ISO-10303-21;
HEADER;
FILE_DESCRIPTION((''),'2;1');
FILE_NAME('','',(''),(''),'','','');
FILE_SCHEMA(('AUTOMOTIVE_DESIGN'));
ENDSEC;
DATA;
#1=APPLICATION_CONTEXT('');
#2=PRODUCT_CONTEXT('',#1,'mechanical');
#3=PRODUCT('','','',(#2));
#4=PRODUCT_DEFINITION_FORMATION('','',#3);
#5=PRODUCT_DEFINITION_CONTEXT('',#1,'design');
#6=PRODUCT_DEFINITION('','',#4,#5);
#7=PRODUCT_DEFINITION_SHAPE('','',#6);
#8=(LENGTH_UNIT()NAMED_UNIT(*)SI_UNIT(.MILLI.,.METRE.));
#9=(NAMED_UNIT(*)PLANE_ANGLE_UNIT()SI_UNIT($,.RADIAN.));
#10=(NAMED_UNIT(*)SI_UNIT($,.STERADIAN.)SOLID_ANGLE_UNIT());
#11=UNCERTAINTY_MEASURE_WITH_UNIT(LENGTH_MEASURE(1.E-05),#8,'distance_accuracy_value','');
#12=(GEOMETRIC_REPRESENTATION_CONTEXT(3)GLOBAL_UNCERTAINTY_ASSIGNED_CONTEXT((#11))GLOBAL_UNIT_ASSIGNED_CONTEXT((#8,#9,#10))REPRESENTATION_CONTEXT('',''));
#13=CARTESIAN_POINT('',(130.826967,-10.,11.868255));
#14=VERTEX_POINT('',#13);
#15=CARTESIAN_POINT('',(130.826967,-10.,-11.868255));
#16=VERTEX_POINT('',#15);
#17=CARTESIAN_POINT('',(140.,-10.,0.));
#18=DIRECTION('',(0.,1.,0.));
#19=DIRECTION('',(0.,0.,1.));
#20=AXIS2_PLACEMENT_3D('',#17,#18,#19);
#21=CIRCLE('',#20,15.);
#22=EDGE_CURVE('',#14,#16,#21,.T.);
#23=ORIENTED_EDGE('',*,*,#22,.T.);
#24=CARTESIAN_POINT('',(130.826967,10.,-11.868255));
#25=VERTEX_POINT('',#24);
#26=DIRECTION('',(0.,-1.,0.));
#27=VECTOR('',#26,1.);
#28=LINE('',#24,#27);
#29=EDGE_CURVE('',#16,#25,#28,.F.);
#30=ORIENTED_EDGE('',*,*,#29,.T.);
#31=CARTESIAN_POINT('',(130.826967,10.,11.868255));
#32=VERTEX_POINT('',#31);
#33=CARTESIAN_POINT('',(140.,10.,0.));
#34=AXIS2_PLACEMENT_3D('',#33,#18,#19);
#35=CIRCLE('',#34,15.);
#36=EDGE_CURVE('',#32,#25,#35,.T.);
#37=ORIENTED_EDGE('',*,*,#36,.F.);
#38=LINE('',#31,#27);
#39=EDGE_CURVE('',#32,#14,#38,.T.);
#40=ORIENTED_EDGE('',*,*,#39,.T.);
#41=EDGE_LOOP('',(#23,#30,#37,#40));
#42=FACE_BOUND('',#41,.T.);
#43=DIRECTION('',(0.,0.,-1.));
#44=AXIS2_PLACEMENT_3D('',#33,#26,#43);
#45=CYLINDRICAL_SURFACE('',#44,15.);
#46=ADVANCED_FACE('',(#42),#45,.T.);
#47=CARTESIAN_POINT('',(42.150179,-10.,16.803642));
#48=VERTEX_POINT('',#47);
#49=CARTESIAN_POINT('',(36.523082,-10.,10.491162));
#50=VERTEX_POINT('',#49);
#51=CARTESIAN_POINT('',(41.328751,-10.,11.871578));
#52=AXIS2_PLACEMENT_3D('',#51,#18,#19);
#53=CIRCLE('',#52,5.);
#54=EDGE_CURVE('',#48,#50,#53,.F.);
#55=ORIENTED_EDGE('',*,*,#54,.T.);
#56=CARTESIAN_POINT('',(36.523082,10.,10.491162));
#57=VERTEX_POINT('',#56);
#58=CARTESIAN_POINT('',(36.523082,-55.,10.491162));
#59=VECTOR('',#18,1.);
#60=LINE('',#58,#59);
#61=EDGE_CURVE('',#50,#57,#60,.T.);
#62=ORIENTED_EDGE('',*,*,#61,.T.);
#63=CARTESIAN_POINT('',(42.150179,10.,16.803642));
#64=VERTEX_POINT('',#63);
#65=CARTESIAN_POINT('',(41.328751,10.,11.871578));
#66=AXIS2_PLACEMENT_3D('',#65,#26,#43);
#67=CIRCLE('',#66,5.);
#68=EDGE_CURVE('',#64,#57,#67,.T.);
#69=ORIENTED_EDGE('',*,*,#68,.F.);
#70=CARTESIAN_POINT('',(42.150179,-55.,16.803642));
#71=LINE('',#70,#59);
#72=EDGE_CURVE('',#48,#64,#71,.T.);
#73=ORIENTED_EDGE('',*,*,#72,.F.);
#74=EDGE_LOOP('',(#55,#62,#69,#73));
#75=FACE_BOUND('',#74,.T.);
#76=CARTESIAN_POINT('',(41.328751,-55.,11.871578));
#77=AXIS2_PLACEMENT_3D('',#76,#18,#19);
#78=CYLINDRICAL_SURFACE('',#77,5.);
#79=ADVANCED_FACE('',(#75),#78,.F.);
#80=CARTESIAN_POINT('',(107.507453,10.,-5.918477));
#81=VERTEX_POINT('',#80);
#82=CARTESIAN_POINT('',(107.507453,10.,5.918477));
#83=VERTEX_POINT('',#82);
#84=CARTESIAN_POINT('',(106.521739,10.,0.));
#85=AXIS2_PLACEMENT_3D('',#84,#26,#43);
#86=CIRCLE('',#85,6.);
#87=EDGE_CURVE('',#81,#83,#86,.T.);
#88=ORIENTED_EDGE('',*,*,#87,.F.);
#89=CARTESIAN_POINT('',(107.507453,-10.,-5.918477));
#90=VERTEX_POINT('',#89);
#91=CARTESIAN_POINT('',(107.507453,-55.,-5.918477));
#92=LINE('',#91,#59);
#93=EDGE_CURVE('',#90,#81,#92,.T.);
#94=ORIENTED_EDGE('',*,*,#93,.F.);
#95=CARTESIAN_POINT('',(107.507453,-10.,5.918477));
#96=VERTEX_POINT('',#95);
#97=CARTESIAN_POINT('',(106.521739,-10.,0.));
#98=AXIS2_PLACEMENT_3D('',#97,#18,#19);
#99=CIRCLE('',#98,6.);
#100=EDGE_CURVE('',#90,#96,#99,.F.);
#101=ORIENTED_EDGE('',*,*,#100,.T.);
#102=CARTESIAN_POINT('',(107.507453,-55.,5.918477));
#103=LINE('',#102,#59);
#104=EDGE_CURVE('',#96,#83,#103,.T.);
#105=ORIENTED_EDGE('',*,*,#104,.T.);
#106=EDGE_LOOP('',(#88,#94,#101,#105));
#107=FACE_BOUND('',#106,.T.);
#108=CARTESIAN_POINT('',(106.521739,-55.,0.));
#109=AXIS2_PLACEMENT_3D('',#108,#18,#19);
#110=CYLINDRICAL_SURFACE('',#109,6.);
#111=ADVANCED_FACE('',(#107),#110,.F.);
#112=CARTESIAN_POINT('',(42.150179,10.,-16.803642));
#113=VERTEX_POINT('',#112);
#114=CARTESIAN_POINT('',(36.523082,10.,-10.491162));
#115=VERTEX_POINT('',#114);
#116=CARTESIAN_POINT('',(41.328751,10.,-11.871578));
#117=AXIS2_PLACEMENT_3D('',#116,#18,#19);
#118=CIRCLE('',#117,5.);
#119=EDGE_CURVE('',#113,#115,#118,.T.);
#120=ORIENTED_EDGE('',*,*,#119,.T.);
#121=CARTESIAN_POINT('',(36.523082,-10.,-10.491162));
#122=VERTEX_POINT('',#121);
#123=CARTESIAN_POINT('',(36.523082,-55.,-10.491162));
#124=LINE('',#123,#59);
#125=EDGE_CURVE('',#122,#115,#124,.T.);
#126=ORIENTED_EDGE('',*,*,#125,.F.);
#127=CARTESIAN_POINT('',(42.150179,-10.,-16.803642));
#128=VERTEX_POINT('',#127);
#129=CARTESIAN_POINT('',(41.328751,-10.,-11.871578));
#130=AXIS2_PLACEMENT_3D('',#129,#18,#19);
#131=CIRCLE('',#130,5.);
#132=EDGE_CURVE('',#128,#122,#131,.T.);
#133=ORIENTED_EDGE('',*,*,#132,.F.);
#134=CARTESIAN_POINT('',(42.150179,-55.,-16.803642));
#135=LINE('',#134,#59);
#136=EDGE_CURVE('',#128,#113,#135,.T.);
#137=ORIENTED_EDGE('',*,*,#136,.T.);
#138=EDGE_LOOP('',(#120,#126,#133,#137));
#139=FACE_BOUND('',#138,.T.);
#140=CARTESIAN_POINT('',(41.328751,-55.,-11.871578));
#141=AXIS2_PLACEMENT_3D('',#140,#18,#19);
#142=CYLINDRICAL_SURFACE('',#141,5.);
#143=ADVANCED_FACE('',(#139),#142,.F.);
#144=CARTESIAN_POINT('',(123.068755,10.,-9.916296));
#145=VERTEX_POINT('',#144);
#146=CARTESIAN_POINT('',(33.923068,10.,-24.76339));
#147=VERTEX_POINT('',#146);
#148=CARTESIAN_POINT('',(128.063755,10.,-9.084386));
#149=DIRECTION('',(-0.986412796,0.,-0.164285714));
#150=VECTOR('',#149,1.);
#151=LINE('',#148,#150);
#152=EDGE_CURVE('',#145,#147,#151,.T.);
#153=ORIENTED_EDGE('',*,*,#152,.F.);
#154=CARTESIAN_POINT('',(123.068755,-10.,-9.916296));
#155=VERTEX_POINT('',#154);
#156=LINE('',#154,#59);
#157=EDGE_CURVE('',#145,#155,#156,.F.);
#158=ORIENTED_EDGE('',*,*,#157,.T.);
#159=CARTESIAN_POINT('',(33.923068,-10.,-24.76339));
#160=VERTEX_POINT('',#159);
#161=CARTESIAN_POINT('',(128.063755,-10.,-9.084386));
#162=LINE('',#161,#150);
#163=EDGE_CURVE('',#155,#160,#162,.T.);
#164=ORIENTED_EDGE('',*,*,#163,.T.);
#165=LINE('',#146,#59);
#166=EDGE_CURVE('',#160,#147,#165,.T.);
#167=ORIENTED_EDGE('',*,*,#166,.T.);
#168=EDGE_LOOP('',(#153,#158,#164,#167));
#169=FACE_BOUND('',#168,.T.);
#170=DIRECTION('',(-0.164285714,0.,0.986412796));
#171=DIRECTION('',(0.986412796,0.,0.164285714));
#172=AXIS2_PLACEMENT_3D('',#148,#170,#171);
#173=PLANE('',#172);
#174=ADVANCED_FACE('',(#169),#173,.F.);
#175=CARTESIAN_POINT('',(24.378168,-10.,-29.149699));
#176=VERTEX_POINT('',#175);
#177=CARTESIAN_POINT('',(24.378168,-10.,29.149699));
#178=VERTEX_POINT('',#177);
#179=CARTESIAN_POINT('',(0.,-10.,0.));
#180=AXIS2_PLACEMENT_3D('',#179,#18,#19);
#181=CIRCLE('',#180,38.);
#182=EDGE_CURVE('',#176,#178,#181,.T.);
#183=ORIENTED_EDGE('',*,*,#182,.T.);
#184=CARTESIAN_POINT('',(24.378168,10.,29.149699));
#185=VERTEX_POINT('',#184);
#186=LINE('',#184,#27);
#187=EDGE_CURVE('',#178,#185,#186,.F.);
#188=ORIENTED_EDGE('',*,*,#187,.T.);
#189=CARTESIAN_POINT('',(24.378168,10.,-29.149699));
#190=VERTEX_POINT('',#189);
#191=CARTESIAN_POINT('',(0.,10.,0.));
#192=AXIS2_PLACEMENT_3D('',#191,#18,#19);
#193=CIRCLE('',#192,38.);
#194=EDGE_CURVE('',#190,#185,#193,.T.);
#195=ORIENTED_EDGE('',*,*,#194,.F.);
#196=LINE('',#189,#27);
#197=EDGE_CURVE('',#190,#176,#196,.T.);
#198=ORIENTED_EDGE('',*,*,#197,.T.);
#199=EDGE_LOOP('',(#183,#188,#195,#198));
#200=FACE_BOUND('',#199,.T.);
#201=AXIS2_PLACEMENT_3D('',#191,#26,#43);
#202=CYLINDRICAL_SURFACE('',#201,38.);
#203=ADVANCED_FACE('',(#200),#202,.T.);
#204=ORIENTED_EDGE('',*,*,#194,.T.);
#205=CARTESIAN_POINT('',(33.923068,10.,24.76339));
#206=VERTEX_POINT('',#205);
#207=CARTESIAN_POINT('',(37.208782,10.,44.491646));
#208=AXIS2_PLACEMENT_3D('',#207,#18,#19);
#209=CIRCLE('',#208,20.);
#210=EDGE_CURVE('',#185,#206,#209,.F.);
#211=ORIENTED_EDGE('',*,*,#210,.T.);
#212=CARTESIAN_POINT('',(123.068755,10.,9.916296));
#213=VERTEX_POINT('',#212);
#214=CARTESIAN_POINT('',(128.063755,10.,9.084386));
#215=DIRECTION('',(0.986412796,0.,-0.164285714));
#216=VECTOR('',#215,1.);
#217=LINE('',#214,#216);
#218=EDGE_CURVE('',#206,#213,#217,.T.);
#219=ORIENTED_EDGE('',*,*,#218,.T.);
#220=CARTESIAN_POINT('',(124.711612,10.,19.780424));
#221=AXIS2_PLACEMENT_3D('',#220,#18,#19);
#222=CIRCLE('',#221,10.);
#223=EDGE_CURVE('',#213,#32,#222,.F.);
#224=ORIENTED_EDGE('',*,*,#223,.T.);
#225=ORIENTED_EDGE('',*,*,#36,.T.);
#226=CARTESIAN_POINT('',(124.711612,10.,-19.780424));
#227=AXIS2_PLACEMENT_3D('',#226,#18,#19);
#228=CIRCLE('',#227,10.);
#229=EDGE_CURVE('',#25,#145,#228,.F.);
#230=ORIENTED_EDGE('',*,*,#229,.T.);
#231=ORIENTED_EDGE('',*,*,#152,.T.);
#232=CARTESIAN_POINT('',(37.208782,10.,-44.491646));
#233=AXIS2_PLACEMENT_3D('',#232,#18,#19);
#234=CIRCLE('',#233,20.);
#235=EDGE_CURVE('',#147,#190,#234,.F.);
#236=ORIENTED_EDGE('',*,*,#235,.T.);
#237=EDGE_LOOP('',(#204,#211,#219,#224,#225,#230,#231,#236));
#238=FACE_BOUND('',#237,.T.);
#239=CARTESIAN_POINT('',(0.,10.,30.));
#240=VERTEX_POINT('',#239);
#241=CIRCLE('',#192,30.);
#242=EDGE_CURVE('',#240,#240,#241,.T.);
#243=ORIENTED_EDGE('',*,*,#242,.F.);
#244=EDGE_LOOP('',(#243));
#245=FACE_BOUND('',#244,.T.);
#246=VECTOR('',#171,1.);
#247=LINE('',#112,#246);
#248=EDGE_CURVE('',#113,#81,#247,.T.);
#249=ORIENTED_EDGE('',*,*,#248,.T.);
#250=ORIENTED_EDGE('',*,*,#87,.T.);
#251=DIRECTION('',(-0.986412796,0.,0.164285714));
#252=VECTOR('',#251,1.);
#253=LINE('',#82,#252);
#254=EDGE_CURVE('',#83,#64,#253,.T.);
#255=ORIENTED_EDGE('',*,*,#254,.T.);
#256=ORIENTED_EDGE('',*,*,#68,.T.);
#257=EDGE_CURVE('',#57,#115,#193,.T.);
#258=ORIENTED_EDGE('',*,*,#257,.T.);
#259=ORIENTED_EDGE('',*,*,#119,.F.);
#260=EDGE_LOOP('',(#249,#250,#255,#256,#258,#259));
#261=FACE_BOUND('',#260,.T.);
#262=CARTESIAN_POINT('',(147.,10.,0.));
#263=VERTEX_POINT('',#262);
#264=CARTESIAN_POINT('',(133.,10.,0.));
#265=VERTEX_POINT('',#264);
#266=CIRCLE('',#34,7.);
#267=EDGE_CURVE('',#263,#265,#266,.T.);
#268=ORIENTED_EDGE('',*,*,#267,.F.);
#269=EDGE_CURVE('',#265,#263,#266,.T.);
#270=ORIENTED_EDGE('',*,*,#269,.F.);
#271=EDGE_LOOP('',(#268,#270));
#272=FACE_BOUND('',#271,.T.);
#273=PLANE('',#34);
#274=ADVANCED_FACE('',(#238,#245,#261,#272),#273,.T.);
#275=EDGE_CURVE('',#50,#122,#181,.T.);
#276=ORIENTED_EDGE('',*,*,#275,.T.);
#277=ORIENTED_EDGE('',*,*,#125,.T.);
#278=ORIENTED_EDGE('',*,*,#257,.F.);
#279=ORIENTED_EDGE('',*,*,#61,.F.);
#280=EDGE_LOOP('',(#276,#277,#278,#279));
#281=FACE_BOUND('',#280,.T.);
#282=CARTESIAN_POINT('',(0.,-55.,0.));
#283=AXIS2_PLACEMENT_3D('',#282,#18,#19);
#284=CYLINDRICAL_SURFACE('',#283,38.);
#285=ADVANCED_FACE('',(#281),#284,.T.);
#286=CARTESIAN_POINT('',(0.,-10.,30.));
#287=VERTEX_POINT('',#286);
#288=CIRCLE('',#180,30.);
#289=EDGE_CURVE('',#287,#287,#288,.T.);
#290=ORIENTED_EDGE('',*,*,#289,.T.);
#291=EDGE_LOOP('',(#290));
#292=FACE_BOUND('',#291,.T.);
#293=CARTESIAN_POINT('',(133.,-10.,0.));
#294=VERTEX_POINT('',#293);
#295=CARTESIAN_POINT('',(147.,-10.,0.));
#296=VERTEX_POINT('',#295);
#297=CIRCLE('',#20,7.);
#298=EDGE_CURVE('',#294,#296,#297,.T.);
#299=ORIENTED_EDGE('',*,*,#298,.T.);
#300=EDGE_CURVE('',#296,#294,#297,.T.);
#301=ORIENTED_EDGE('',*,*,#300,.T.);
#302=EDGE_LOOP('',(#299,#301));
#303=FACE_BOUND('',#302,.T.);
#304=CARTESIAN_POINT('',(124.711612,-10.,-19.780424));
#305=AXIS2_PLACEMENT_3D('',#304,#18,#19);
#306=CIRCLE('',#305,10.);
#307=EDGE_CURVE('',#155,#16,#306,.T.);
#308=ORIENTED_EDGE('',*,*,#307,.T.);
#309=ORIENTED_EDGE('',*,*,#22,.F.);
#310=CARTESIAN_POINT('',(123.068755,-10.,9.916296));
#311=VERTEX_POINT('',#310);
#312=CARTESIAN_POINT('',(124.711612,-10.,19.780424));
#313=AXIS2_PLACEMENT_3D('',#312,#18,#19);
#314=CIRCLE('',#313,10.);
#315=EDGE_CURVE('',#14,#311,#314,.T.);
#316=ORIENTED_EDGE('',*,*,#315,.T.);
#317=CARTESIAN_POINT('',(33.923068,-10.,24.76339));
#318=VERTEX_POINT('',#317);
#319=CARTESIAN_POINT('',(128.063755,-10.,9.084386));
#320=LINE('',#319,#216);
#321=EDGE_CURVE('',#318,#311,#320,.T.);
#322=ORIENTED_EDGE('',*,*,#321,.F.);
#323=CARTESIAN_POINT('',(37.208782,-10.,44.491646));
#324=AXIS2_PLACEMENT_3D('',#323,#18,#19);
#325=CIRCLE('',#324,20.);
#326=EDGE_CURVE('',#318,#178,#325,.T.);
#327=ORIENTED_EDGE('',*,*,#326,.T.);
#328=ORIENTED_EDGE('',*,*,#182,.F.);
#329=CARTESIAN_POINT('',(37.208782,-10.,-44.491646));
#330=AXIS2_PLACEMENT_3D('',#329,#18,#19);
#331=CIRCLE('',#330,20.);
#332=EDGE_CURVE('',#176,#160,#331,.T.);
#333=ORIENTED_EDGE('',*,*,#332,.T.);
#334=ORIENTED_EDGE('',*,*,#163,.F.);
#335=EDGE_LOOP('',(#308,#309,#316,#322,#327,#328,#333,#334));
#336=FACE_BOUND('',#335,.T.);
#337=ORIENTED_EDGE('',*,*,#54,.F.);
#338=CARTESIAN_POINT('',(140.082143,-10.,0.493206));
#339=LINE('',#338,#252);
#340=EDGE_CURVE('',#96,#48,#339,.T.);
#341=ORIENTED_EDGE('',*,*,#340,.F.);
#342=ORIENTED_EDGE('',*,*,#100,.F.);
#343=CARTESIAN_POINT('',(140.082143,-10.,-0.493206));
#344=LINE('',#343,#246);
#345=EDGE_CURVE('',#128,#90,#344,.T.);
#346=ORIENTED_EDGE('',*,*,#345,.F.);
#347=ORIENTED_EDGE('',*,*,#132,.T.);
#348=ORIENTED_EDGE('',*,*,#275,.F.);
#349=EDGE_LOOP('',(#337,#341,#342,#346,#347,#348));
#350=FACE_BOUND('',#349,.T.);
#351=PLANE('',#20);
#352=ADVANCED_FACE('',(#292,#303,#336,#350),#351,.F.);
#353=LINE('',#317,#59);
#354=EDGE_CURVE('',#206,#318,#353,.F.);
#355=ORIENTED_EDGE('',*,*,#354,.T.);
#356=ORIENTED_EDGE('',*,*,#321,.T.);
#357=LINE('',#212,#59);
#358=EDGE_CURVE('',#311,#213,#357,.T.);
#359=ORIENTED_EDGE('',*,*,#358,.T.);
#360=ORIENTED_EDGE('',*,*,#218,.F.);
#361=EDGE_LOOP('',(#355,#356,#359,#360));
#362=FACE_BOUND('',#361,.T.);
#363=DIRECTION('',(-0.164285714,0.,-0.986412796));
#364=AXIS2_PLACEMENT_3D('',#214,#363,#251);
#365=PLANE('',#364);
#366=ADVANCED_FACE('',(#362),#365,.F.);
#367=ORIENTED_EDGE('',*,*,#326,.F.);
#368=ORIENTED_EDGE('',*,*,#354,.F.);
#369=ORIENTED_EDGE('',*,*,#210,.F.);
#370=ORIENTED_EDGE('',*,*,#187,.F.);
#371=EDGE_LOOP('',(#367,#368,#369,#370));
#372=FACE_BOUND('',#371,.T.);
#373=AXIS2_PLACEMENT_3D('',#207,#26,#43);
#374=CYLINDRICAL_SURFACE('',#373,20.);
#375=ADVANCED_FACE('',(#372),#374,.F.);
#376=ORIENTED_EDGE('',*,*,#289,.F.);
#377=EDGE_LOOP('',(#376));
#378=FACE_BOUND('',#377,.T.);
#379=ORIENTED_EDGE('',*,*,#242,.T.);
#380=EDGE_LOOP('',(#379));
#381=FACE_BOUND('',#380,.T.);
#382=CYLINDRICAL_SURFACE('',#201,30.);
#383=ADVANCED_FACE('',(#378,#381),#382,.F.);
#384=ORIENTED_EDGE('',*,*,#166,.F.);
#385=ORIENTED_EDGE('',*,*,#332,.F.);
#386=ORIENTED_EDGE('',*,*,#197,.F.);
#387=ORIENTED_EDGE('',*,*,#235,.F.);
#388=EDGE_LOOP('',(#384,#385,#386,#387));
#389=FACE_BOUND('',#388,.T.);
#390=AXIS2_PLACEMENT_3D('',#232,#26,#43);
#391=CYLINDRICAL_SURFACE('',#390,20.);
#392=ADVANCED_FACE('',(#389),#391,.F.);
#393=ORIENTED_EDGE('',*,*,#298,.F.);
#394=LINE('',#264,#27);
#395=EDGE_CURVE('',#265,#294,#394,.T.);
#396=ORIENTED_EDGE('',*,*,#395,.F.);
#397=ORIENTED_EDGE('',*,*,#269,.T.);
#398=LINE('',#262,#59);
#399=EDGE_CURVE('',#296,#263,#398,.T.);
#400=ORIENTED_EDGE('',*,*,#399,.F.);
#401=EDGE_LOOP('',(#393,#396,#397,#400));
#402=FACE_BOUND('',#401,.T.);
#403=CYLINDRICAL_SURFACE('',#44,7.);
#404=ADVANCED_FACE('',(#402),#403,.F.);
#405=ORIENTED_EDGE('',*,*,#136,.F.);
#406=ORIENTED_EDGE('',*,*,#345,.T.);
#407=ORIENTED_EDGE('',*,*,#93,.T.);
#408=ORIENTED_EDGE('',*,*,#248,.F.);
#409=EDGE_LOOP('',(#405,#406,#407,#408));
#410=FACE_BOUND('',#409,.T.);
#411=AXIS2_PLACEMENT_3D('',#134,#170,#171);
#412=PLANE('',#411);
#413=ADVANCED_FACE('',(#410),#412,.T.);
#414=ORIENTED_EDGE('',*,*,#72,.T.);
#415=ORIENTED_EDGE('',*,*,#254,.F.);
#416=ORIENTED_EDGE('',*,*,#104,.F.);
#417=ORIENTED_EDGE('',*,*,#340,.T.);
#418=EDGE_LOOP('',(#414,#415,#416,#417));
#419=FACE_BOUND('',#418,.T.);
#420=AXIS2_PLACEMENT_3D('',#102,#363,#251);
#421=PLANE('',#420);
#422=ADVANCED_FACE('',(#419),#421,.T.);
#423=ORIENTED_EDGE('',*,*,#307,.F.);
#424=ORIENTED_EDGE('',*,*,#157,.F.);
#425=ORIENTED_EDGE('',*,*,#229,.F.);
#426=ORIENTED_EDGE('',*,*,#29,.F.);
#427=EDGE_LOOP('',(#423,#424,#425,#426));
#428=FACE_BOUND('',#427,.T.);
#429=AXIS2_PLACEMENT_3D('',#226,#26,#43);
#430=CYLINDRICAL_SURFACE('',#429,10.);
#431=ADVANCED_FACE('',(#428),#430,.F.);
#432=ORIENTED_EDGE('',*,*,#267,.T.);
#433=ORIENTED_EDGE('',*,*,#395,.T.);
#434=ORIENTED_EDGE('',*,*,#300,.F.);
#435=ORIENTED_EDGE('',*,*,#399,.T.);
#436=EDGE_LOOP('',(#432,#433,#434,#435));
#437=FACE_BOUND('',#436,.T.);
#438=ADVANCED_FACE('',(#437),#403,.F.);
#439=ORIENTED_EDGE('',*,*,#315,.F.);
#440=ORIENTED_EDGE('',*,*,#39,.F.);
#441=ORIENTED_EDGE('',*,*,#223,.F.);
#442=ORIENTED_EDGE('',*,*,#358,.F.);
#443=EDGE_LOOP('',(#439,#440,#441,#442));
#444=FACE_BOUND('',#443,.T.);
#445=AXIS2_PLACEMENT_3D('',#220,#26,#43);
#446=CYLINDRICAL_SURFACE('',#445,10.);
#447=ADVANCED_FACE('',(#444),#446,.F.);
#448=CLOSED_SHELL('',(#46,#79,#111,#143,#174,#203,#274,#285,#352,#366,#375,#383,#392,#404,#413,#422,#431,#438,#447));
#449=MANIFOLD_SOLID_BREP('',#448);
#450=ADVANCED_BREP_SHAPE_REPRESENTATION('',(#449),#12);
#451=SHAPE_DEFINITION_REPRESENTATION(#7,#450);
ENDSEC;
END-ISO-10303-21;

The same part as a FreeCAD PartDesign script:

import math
import FreeCAD as App
import Part
import Sketcher

V = App.Vector
Q = App.Units.Quantity


def edges_at(feature, points):
    """Names of the edges that pass closest to the given points."""
    edges = feature.Shape.Edges
    near = lambda p: min(range(len(edges)), key=lambda i: edges[i].distToShape(Part.Vertex(*p))[0])
    return sorted({f"Edge{near(p) + 1}" for p in points})

doc = App.newDocument("Part")
body = doc.addObject("PartDesign::Body", "Body")

# Sketch on XZ plane
sketch1 = body.newObject("Sketcher::SketchObject", "Sketch")
sketch1.AttachmentSupport = (doc.getObject("XZ_Plane"), [""])
sketch1.MapMode = "FlatFace"
sketch1.addGeometry([
    Part.LineSegment(V(128, -9, 0), V(28, -26, 0)),  # 0
    Part.ArcOfCircle(Part.Circle(V(0, 0, 0), V(0, 0, 1), 38), math.radians(43), math.radians(317)),  # 1
    Part.LineSegment(V(28, 26, 0), V(128, 9, 0)),  # 2
    Part.ArcOfCircle(Part.Circle(V(140, 0, 0), V(0, 0, 1), 15), math.radians(-143), math.radians(143)),  # 3
    Part.Circle(V(0, 0, 0), V(0, 0, 1), 30),  # 4
    Part.Circle(V(140, 0, 0), V(0, 0, 1), 7),  # 5
], False)
sketch1.addConstraint([
    Sketcher.Constraint("Coincident", 0, 2, 1, 2),
    Sketcher.Constraint("Coincident", 1, 1, 2, 1),
    Sketcher.Constraint("Coincident", 2, 2, 3, 2),
    Sketcher.Constraint("Coincident", 3, 1, 0, 1),
    Sketcher.Constraint("Coincident", 1, 3, -1, 1),
    Sketcher.Constraint("Coincident", 4, 3, -1, 1),
    Sketcher.Constraint("Coincident", 5, 3, 3, 3),
    Sketcher.Constraint("Symmetric", 2, 2, 3, 1, -1),
    Sketcher.Constraint("Vertical", 0, 2, 1, 1),
    Sketcher.Constraint("Diameter", 4, Q("60 mm")),
    Sketcher.Constraint("Diameter", 5, Q("14 mm")),
    Sketcher.Constraint("Radius", 1, Q("38 mm")),
    Sketcher.Constraint("Radius", 3, Q("15 mm")),
    Sketcher.Constraint("DistanceX", -1, 1, 3, 3, Q("140 mm")),
    Sketcher.Constraint("DistanceY", 0, 2, 2, 2, Q("34.845001 mm")),
    Sketcher.Constraint("DistanceY", 0, 2, 1, 1, Q("51.521231 mm")),
])
pad1 = body.newObject("PartDesign::Pad", "Pad")
pad1.Profile = sketch1
pad1.Length = 20
pad1.Midplane = True
doc.recompute()

fillet = body.newObject("PartDesign::Fillet", "Fillet")
fillet.Base = (pad1, edges_at(pad1, [(128.064, 0, 9.084), (128.064, 0, -9.084)]))
fillet.Radius = 10
doc.recompute()

fillet2 = body.newObject("PartDesign::Fillet", "Fillet001")
fillet2.Base = (fillet, edges_at(fillet, [(27.935, 0, 25.761), (27.935, 0, -25.761)]))
fillet2.Radius = 20

# Sketch on XZ plane
sketch2 = body.newObject("Sketcher::SketchObject", "Sketch001")
sketch2.AttachmentSupport = (doc.getObject("XZ_Plane"), [""])
sketch2.MapMode = "FlatFace"
sketch2.AttachmentOffset = App.Placement(V(0, 0, -10), App.Rotation())
sketch2.addGeometry([
    Part.LineSegment(V(108, -6, 0), V(42, -17, 0)),  # 0
    Part.ArcOfCircle(Part.Circle(V(41, -12, 0), V(0, 0, 1), 5), math.radians(164), math.radians(279)),  # 1
    Part.ArcOfCircle(Part.Circle(V(0, 0, 0), V(0, 0, 1), 38), math.radians(-16), math.radians(16)),  # 2
    Part.ArcOfCircle(Part.Circle(V(41, 12, 0), V(0, 0, 1), 5), math.radians(81), math.radians(196)),  # 3
    Part.LineSegment(V(42, 17, 0), V(108, 6, 0)),  # 4
    Part.ArcOfCircle(Part.Circle(V(107, 0, 0), V(0, 0, 1), 6), math.radians(-81), math.radians(81)),  # 5
], False)
sketch2.addConstraint([
    Sketcher.Constraint("Tangent", 0, 2, 1, 2),
    Sketcher.Constraint("Tangent", 1, 1, 2, 1),
    Sketcher.Constraint("Tangent", 2, 2, 3, 2),
    Sketcher.Constraint("Tangent", 3, 1, 4, 1),
    Sketcher.Constraint("Tangent", 4, 2, 5, 2),
    Sketcher.Constraint("Tangent", 5, 1, 0, 1),
    Sketcher.Constraint("Coincident", 2, 3, -1, 1),
    Sketcher.Constraint("Equal", 1, 3),
    Sketcher.Constraint("Symmetric", 0, 2, 3, 1, -1),
    Sketcher.Constraint("Radius", 1, Q("5 mm")),
    Sketcher.Constraint("Radius", 2, Q("38 mm")),
    Sketcher.Constraint("Radius", 5, Q("6 mm")),
    Sketcher.Constraint("DistanceY", 4, 2, 3, 3, Q("5.953101 mm")),
    Sketcher.Constraint("Distance", 0, Q("66.257529 mm")),
])
pocket1 = body.newObject("PartDesign::Pocket", "Pocket")
pocket1.Profile = sketch2
pocket1.Length = 65
pocket1.Reversed = True

doc.recompute()
